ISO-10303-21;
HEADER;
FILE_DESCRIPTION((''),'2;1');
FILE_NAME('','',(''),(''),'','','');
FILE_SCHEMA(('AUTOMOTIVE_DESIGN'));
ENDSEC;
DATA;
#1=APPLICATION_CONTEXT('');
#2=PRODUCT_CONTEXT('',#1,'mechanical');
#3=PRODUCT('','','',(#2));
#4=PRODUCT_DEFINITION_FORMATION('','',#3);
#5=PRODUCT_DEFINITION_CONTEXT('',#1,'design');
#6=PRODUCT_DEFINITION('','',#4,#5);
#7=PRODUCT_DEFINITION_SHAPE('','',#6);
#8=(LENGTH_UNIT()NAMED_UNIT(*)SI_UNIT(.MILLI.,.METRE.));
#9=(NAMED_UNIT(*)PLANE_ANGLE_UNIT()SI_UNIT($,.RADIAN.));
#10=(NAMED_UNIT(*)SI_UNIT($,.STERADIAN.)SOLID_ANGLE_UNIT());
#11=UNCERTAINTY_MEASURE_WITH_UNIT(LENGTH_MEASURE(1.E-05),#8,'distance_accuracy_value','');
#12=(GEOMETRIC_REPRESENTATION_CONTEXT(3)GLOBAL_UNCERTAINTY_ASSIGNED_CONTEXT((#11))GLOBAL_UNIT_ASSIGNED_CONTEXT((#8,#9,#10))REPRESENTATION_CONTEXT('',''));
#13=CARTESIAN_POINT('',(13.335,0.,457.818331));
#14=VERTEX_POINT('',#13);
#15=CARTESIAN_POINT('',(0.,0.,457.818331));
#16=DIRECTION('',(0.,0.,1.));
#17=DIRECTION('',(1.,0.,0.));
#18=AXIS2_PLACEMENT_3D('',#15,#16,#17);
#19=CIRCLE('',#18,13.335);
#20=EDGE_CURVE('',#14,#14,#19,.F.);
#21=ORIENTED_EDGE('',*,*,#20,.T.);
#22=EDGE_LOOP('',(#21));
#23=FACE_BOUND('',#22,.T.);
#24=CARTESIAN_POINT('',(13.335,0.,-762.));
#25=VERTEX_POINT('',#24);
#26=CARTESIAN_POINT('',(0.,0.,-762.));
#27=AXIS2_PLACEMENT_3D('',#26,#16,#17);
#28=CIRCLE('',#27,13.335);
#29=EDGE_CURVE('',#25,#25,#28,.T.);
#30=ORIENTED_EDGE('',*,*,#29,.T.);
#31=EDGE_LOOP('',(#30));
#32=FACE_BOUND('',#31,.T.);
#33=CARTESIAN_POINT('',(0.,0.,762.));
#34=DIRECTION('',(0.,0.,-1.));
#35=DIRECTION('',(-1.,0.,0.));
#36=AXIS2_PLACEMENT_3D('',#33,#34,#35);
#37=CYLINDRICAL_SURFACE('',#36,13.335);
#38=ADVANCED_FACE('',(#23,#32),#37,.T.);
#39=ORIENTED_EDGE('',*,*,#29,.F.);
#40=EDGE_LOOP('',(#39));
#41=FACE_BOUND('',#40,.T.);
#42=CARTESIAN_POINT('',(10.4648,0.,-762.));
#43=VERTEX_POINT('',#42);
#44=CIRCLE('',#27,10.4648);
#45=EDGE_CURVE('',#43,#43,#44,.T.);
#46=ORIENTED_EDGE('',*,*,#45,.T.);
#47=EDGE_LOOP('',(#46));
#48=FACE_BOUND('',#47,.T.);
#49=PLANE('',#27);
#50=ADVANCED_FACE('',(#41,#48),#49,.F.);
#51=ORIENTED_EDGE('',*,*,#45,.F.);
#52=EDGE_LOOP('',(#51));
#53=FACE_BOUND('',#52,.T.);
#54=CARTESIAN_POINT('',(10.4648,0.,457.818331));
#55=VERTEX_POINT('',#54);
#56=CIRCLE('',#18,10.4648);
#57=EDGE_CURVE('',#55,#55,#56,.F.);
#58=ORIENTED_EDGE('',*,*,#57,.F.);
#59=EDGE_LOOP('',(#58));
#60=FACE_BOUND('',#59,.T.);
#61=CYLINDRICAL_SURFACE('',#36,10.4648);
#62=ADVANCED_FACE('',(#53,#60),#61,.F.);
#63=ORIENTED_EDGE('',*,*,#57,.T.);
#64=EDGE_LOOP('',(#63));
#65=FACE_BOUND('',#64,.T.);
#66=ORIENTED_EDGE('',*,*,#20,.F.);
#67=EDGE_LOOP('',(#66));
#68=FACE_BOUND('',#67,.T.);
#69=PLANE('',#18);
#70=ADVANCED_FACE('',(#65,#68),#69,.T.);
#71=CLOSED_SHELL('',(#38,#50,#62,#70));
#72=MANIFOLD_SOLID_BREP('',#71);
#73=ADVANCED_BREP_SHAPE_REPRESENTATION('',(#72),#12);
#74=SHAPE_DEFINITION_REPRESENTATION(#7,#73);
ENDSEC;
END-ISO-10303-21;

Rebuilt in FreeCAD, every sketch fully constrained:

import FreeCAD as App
import Part
import Sketcher
from FreeCAD import Vector
Q = App.Units.Quantity

doc = App.newDocument("Part")
body = doc.addObject("PartDesign::Body", "Body")

sketch1 = body.newObject("Sketcher::SketchObject", "Sketch")
sketch1.AttachmentSupport = (doc.getObject("XY_Plane"), [""])
sketch1.MapMode = "FlatFace"
sketch1.addGeometry(Part.Circle(Vector(0, 0, 0), Vector(0, 0, 1), 13), False)
sketch1.addGeometry(Part.Circle(Vector(0, 0, 0), Vector(0, 0, 1), 10), False)
sketch1.addConstraint(Sketcher.Constraint("Coincident", 0, 3, -1, 1))
sketch1.addConstraint(Sketcher.Constraint("Coincident", 1, 3, -1, 1))
sketch1.addConstraint(Sketcher.Constraint("Diameter", 0, Q("1.05 in")))
sketch1.addConstraint(Sketcher.Constraint("Diameter", 1, Q("0.824 in")))
pad1 = body.newObject("PartDesign::Pad", "Pad")
pad1.Profile = sketch1
pad1.Type = "TwoLengths"
pad1.Length = Q("30 in")
pad1.Length2 = Q("30 in")

sketch2 = body.newObject("Sketcher::SketchObject", "Sketch001")
sketch2.AttachmentSupport = (doc.getObject("XY_Plane"), [""])
sketch2.MapMode = "FlatFace"
sketch2.AttachmentOffset = App.Placement(Vector(0, 0, 30 * 25.4), App.Rotation())
sketch2.addGeometry(Part.Circle(Vector(0, 0, 0), Vector(0, 0, 1), 13), False)
sketch2.addGeometry(Part.Circle(Vector(0, 0, 0), Vector(0, 0, 1), 10), False)
sketch2.addConstraint(Sketcher.Constraint("Coincident", 0, 3, -1, 1))
sketch2.addConstraint(Sketcher.Constraint("Coincident", 1, 3, -1, 1))
sketch2.addConstraint(Sketcher.Constraint("Diameter", 0, Q("1.05 in")))
sketch2.addConstraint(Sketcher.Constraint("Diameter", 1, Q("0.824 in")))
pocket1 = body.newObject("PartDesign::Pocket", "Pocket")
pocket1.Profile = sketch2
pocket1.Length = 304.181669

doc.recompute()
